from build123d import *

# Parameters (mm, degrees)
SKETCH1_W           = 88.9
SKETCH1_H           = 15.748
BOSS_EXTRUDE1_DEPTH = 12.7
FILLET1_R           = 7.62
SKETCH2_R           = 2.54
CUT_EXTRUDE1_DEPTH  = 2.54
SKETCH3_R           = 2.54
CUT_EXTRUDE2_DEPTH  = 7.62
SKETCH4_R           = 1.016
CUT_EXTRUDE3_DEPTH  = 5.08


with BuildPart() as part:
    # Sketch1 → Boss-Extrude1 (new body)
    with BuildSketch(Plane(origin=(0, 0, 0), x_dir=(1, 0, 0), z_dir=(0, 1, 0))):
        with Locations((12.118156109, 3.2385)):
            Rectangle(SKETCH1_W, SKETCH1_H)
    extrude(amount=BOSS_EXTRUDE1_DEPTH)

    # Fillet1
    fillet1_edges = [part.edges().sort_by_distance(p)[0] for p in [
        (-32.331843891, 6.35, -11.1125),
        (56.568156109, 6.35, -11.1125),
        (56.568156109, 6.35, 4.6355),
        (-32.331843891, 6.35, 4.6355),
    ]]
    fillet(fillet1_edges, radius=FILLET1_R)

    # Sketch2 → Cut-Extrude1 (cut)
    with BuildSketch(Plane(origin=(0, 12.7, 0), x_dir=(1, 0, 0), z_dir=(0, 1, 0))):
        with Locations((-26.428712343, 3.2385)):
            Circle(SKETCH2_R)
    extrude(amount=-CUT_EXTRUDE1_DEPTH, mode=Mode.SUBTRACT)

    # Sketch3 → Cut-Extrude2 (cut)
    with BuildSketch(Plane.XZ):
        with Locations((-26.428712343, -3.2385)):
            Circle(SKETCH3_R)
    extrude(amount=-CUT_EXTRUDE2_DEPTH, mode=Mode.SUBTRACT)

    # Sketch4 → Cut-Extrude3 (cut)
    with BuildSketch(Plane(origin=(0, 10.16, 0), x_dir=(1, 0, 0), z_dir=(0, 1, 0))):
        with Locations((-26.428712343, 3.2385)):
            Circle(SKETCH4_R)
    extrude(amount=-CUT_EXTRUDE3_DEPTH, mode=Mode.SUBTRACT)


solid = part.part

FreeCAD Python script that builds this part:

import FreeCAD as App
import Part
import Sketcher
from FreeCAD import Vector
Q = App.Units.Quantity


def edges_at(feature, points):
    """Names of the edges that pass closest to the given points."""
    edges = feature.Shape.Edges
    near = lambda p: min(range(len(edges)), key=lambda i: edges[i].distToShape(Part.Vertex(*p))[0])
    return sorted({f"Edge{near(p) + 1}" for p in points})

doc = App.newDocument("Part")
body = doc.addObject("PartDesign::Body", "Body")

sketch1 = doc.addObject("Sketcher::SketchObject", "Sketch")
body.addObject(sketch1)
sketch1.AttachmentSupport = (doc.XZ_Plane, [""])
sketch1.MapMode = "FlatFace"
sketch1.addGeometry(Part.LineSegment(Vector(-32, -11, 0), Vector(-32, 5, 0)), False)
sketch1.addGeometry(Part.LineSegment(Vector(-32, 5, 0), Vector(57, 5, 0)), False)
sketch1.addGeometry(Part.LineSegment(Vector(57, 5, 0), Vector(57, -11, 0)), False)
sketch1.addGeometry(Part.LineSegment(Vector(57, -11, 0), Vector(-32, -11, 0)), False)
sketch1.addConstraint(Sketcher.Constraint("Coincident", 0, 2, 1, 1))
sketch1.addConstraint(Sketcher.Constraint("Coincident", 1, 2, 2, 1))
sketch1.addConstraint(Sketcher.Constraint("Coincident", 2, 2, 3, 1))
sketch1.addConstraint(Sketcher.Constraint("Coincident", 3, 2, 0, 1))
sketch1.addConstraint(Sketcher.Constraint("Vertical", 0))
sketch1.addConstraint(Sketcher.Constraint("Horizontal", 1))
sketch1.addConstraint(Sketcher.Constraint("Vertical", 2))
sketch1.addConstraint(Sketcher.Constraint("Horizontal", 3))
sketch1.addConstraint(Sketcher.Constraint("DistanceX", 1, 1, 1, 2, Q("3.5 in")))
sketch1.addConstraint(Sketcher.Constraint("DistanceY", 0, 1, 0, 2, Q("0.62 in")))
sketch1.addConstraint(Sketcher.Constraint("DistanceY", 2, 2, -1, 1, Q("0.4375 in")))
sketch1.addConstraint(Sketcher.Constraint("DistanceX", 0, 2, -1, 1, 32.331844))
pad1 = doc.addObject("PartDesign::Pad", "Pad")
body.addObject(pad1)
pad1.Profile = sketch1
pad1.Length = Q("0.5 in")
pad1.Reversed = True
doc.recompute()

fillet = doc.addObject("PartDesign::Fillet", "Fillet")
body.addObject(fillet)
fillet.Base = (pad1, edges_at(pad1, [
    (-32.332, 6.35, -11.113),
    (56.568, 6.35, -11.113),
    (56.568, 6.35, 4.636),
    (-32.332, 6.35, 4.636),
]))
fillet.Radius = Q("0.3 in")

sketch2 = doc.addObject("Sketcher::SketchObject", "Sketch001")
body.addObject(sketch2)
sketch2.AttachmentSupport = (doc.XZ_Plane, [""])
sketch2.MapMode = "FlatFace"
sketch2.AttachmentOffset = App.Placement(Vector(0, 0, -0.5 * 25.4), App.Rotation())
sketch2.addGeometry(Part.Circle(Vector(-26.4, -3.2, 0), Vector(0, 0, 1), 2.5), False)
sketch2.addConstraint(Sketcher.Constraint("Diameter", 0, Q("0.2 in")))
sketch2.addConstraint(Sketcher.Constraint("DistanceY", 0, 3, -1, 1, Q("0.1275 in")))
sketch2.addConstraint(Sketcher.Constraint("DistanceX", 0, 3, -1, 1, 26.428712))
pocket1 = doc.addObject("PartDesign::Pocket", "Pocket")
body.addObject(pocket1)
pocket1.Profile = sketch2
pocket1.Length = Q("0.1 in")
pocket1.Reversed = True

sketch3 = doc.addObject("Sketcher::SketchObject", "Sketch002")
body.addObject(sketch3)
sketch3.AttachmentSupport = (doc.XZ_Plane, [""])
sketch3.MapMode = "FlatFace"
sketch3.addGeometry(Part.Circle(Vector(-26.4, -3.2, 0), Vector(0, 0, 1), 2.5), False)
sketch3.addConstraint(Sketcher.Constraint("Diameter", 0, Q("0.2 in")))
sketch3.addConstraint(Sketcher.Constraint("DistanceY", 0, 3, -1, 1, Q("0.1275 in")))
sketch3.addConstraint(Sketcher.Constraint("DistanceX", 0, 3, -1, 1, 26.428712))
pocket2 = doc.addObject("PartDesign::Pocket", "Pocket001")
body.addObject(pocket2)
pocket2.Profile = sketch3
pocket2.Length = Q("0.3 in")

sketch4 = doc.addObject("Sketcher::SketchObject", "Sketch003")
body.addObject(sketch4)
sketch4.AttachmentSupport = (doc.XZ_Plane, [""])
sketch4.MapMode = "FlatFace"
sketch4.AttachmentOffset = App.Placement(Vector(0, 0, -0.4 * 25.4), App.Rotation())
sketch4.addGeometry(Part.Circle(Vector(-26.4, -3.2, 0), Vector(0, 0, 1), 1), False)
sketch4.addConstraint(Sketcher.Constraint("Diameter", 0, Q("0.08 in")))
sketch4.addConstraint(Sketcher.Constraint("DistanceY", 0, 3, -1, 1, Q("0.1275 in")))
sketch4.addConstraint(Sketcher.Constraint("DistanceX", 0, 3, -1, 1, 26.428712))
pocket3 = doc.addObject("PartDesign::Pocket", "Pocket002")
body.addObject(pocket3)
pocket3.Profile = sketch4
pocket3.Length = Q("0.2 in")
pocket3.Reversed = True

doc.recompute()
